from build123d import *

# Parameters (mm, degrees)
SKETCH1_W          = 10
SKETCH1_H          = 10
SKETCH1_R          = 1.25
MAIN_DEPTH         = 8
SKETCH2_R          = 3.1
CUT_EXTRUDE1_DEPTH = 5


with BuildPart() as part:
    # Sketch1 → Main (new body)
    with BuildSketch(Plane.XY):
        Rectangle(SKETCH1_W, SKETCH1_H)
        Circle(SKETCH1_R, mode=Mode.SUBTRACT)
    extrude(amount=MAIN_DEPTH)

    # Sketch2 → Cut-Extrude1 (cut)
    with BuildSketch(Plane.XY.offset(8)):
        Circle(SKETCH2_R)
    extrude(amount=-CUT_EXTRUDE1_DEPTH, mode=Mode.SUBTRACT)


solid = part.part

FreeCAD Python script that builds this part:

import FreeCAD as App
import Part
import Sketcher

V = App.Vector


def add_polygon(sketch, points):
    """Adds a closed chain of lines whose ends are joined by coincident constraints."""
    first, n = sketch.GeometryCount, len(points)
    for a, b in zip(points, points[1:] + points[:1]):
        sketch.addGeometry(Part.LineSegment(App.Vector(*a, 0), App.Vector(*b, 0)), False)
    for i in range(n):
        sketch.addConstraint(Sketcher.Constraint("Coincident", first + i, 2, first + (i + 1) % n, 1))

doc = App.newDocument("Part")
params = doc.addObject("Spreadsheet::Sheet", "Params")
for row, (alias, value) in enumerate([
    ("sketch1_diameter", "2.5 mm"),
    ("sketch1_width", "10 mm"),
    ("pad1_length", "8 mm"),
    ("sketch2_diameter", "6.2 mm"),
    ("pocket1_length", "5 mm"),
], start=1):
    params.set(f"A{row}", alias)
    params.set(f"B{row}", "=" + value)
    params.setAlias(f"B{row}", alias)

body = doc.addObject("PartDesign::Body", "Body")

sketch1 = body.newObject("Sketcher::SketchObject", "Sketch")
sketch1.AttachmentSupport = (doc.getObject("XY_Plane"), [""])
sketch1.MapMode = "FlatFace"
add_polygon(sketch1, [(-5, 5), (-5, -5), (5, -5), (5, 5)])
sketch1.addGeometry(Part.Circle(V(0, 0, 0), V(0, 0, 1), 1.2), False)
sketch1.addConstraint([
    Sketcher.Constraint("Vertical", 0),
    Sketcher.Constraint("Horizontal", 1),
    Sketcher.Constraint("Vertical", 2),
    Sketcher.Constraint("Horizontal", 3),
    Sketcher.Constraint("Coincident", 4, 3, -1, 1),
    Sketcher.Constraint("Symmetric", 0, 2, 2, 2, -1, 1),
    Sketcher.Constraint("Equal", 3, 0),
    Sketcher.Constraint("Diameter", 4, 2.5),
    Sketcher.Constraint("DistanceX", 1, 1, 1, 2, 10.0),
])
sketch1.setExpression("Constraints[11]", "Params.sketch1_diameter")
sketch1.setExpression("Constraints[12]", "Params.sketch1_width")
pad1 = body.newObject("PartDesign::Pad", "Pad")
pad1.Profile = sketch1
pad1.setExpression("Length", "Params.pad1_length")

sketch2 = body.newObject("Sketcher::SketchObject", "Sketch001")
sketch2.AttachmentSupport = (doc.getObject("XY_Plane"), [""])
sketch2.MapMode = "FlatFace"
sketch2.AttachmentOffset = App.Placement(V(0, 0, 8), App.Rotation())
sketch2.addGeometry(Part.Circle(V(0, 0, 0), V(0, 0, 1), 3.1), False)
sketch2.addConstraint([
    Sketcher.Constraint("Coincident", 0, 3, -1, 1),
    Sketcher.Constraint("Diameter", 0, 6.2),
])
sketch2.setExpression("Constraints[1]", "Params.sketch2_diameter")
pocket1 = body.newObject("PartDesign::Pocket", "Pocket")
pocket1.Profile = sketch2
pocket1.setExpression("Length", "Params.pocket1_length")

doc.recompute()
